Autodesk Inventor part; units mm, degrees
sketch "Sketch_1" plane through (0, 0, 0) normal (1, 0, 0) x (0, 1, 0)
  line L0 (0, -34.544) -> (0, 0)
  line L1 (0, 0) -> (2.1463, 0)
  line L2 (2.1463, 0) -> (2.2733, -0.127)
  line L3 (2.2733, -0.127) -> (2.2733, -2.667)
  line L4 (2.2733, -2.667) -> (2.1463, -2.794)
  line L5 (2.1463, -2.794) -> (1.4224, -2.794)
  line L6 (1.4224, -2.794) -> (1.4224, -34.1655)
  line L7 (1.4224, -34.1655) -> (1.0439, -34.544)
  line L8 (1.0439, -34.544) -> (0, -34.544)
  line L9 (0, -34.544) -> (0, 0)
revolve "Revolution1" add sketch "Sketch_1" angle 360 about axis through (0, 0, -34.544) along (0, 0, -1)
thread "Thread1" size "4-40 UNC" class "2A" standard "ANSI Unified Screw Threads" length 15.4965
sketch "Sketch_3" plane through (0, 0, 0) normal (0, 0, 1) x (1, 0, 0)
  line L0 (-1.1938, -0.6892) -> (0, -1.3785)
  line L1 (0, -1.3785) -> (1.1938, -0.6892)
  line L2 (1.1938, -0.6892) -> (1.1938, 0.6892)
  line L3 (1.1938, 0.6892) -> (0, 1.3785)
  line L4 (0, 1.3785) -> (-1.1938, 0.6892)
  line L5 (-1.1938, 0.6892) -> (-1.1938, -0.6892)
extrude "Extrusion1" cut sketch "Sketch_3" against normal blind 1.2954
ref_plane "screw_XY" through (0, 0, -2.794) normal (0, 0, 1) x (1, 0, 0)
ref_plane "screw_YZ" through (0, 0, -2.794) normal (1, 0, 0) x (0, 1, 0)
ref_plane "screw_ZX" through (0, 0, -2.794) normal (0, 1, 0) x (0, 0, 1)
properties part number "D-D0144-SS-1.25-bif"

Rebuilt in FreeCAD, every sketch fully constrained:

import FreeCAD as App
import Part
import Sketcher

V = App.Vector
Q = App.Units.Quantity


def add_polygon(sketch, points):
    """Adds a closed chain of lines whose ends are joined by coincident constraints."""
    first, n = sketch.GeometryCount, len(points)
    for a, b in zip(points, points[1:] + points[:1]):
        sketch.addGeometry(Part.LineSegment(App.Vector(*a, 0), App.Vector(*b, 0)), False)
    for i in range(n):
        sketch.addConstraint(Sketcher.Constraint("Coincident", first + i, 2, first + (i + 1) % n, 1))

doc = App.newDocument("Part")
body = doc.addObject("PartDesign::Body", "Body")

# Sketch on YZ plane
sketch1 = body.newObject("Sketcher::SketchObject", "Sketch")
sketch1.AttachmentSupport = (doc.getObject("YZ_Plane"), [""])
sketch1.MapMode = "FlatFace"
add_polygon(sketch1, [(0, 0), (0, -34.54), (1.04, -34.54), (1.42, -34.17), (1.42, -2.79), (2.15, -2.79), (2.27, -2.67), (2.27, -0.13), (2.15, 0)])  # lines 0-8
sketch1.addConstraint(Sketcher.Constraint("Vertical", 0))
sketch1.addConstraint(Sketcher.Constraint("Horizontal", 1))
sketch1.addConstraint(Sketcher.Constraint("Vertical", 3))
sketch1.addConstraint(Sketcher.Constraint("Horizontal", 4))
sketch1.addConstraint(Sketcher.Constraint("Vertical", 6))
sketch1.addConstraint(Sketcher.Constraint("Horizontal", 8))
sketch1.addConstraint(Sketcher.Constraint("Coincident", 8, 2, -1, 1))
sketch1.addConstraint(Sketcher.Constraint("Parallel", 2, 5))
sketch1.addConstraint(Sketcher.Constraint("Perpendicular", 5, 7))
sketch1.addConstraint(Sketcher.Constraint("Vertical", 4, 2, 7, 2))
sketch1.addConstraint(Sketcher.Constraint("Equal", 5, 7))
sketch1.addConstraint(Sketcher.Constraint("DistanceY", 6, 1, 6, 2, Q("0.1 in")))
sketch1.addConstraint(Sketcher.Constraint("DistanceY", 0, 2, 0, 1, Q("1.36 in")))
sketch1.addConstraint(Sketcher.Constraint("DistanceY", 3, 2, -1, 1, Q("0.11 in")))
sketch1.addConstraint(Sketcher.Constraint("DistanceX", 1, 1, 1, 2, Q("0.0411 in")))
sketch1.addConstraint(Sketcher.Constraint("DistanceX", 4, 1, 4, 2, Q("0.0285 in")))
sketch1.addConstraint(Sketcher.Constraint("DistanceX", 8, 2, 8, 1, Q("0.0845 in")))
revolution = body.newObject("PartDesign::Revolution", "Revolution")
revolution.Profile = sketch1
revolution.ReferenceAxis = (sketch1, ["V_Axis"])
revolution.Angle = 360

# Sketch on XY plane
sketch2 = body.newObject("Sketcher::SketchObject", "Sketch001")
sketch2.AttachmentSupport = (doc.getObject("XY_Plane"), [""])
sketch2.MapMode = "FlatFace"
add_polygon(sketch2, [(-1.2, 0.7), (-1.2, -0.7), (0, -1.4), (1.2, -0.7), (1.2, 0.7), (0, 1.4)])  # lines 0-5
sketch2.addConstraint(Sketcher.Constraint("Vertical", 0))
sketch2.addConstraint(Sketcher.Constraint("Vertical", 3))
sketch2.addConstraint(Sketcher.Constraint("Symmetric", 0, 2, 3, 2, -1, 1))
sketch2.addConstraint(Sketcher.Constraint("Symmetric", 1, 2, 4, 2, -1, 1))
sketch2.addConstraint(Sketcher.Constraint("PointOnObject", 1, 2, -2))
sketch2.addConstraint(Sketcher.Constraint("Parallel", 2, 5))
sketch2.addConstraint(Sketcher.Constraint("Horizontal", 0, 2, 2, 2))
sketch2.addConstraint(Sketcher.Constraint("DistanceX", 0, 2, -1, 1, Q("0.047 in")))
sketch2.addConstraint(Sketcher.Constraint("DistanceY", 0, 2, 0, 1, 1.3784))
sketch2.addConstraint(Sketcher.Constraint("DistanceY", 1, 2, 3, 2, Q("0.0814 in")))
pocket1 = body.newObject("PartDesign::Pocket", "Pocket")
pocket1.Profile = sketch2
pocket1.Length = Q("0.051 in")

doc.recompute()
